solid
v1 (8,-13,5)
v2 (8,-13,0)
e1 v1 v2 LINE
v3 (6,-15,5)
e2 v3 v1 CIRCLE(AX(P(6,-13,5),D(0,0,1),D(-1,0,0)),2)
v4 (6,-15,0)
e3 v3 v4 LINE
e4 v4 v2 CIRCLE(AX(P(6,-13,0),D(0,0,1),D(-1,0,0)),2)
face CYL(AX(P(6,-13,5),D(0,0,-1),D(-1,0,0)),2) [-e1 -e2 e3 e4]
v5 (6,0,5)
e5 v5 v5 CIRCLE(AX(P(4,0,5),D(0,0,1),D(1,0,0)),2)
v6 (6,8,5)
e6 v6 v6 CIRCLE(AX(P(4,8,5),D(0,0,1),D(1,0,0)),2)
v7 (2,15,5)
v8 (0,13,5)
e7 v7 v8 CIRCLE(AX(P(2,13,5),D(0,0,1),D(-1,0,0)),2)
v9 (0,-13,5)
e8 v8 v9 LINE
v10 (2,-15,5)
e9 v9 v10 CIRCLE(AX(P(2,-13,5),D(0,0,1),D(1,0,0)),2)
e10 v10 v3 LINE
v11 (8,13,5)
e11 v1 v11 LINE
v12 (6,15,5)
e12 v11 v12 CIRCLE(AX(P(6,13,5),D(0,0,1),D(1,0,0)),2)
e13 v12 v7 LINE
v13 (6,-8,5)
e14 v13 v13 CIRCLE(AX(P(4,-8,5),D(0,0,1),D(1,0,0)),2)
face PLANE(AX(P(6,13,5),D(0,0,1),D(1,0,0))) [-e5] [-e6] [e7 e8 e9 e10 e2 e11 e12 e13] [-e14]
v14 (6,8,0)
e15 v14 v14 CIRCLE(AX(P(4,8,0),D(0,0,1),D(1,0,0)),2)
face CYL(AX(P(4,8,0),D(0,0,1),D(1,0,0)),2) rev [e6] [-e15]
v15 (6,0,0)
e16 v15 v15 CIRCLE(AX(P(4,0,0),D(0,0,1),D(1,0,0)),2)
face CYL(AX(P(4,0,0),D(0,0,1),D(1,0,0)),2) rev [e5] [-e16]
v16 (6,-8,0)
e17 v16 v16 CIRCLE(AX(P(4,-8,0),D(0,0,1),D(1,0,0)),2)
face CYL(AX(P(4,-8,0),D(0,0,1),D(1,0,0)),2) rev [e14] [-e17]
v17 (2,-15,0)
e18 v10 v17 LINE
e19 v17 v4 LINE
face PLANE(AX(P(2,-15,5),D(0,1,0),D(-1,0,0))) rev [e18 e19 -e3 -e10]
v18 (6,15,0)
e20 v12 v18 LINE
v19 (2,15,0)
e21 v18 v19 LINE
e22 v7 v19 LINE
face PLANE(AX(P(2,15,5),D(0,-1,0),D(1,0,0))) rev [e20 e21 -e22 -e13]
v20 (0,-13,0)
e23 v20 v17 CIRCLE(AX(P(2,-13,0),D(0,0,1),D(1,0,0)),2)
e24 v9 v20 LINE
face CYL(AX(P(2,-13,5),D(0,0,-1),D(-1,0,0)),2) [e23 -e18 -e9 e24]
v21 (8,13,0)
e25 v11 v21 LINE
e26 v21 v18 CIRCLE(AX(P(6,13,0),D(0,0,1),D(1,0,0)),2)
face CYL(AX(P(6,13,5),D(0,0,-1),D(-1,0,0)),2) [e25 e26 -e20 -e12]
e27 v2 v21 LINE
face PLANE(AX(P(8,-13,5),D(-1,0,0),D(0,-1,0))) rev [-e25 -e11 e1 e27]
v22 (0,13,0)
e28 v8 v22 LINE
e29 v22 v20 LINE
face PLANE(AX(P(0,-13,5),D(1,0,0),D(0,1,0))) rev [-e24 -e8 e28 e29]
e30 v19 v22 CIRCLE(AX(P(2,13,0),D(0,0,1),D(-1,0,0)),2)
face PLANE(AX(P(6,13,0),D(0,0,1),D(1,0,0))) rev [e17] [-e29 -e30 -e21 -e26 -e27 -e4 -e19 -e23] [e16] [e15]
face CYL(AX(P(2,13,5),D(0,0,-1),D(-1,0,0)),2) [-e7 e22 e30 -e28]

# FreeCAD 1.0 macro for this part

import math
import FreeCAD as App
import Part
import Sketcher

V = App.Vector
Q = App.Units.Quantity

doc = App.newDocument("Part")
params = doc.addObject("Spreadsheet::Sheet", "Params")
for row, (alias, value) in enumerate([
    ("sketch1_radius", "2 mm"),
    ("sketch1_width", "4 mm"),
    ("sketch1_height", "26 mm"),
    ("pad1_length", "5 mm"),
    ("sketch2_diameter", "4 mm"),
], start=1):
    params.set(f"A{row}", alias)
    params.set(f"B{row}", "=" + value)
    params.setAlias(f"B{row}", alias)

body = doc.addObject("PartDesign::Body", "Body")

sketch1 = body.newObject("Sketcher::SketchObject", "Sketch")
sketch1.AttachmentSupport = (doc.getObject("XY_Plane"), [""])
sketch1.MapMode = "FlatFace"
sketch1.addGeometry([
    Part.LineSegment(V(0, 13, 0), V(0, -13, 0)),
    Part.ArcOfCircle(Part.Circle(V(2, -13, 0), V(0, 0, 1), 2), math.radians(-180), math.radians(-90)),
    Part.LineSegment(V(2, -15, 0), V(6, -15, 0)),
    Part.ArcOfCircle(Part.Circle(V(6, -13, 0), V(0, 0, 1), 2), math.radians(-90), math.radians(0)),
    Part.LineSegment(V(8, -13, 0), V(8, 13, 0)),
    Part.ArcOfCircle(Part.Circle(V(6, 13, 0), V(0, 0, 1), 2), math.radians(0), math.radians(90)),
    Part.LineSegment(V(6, 15, 0), V(2, 15, 0)),
    Part.ArcOfCircle(Part.Circle(V(2, 13, 0), V(0, 0, 1), 2), math.radians(90), math.radians(180)),
], False)
sketch1.addConstraint([
    Sketcher.Constraint("Tangent", 0, 2, 1, 1),
    Sketcher.Constraint("Tangent", 1, 2, 2, 1),
    Sketcher.Constraint("Tangent", 2, 2, 3, 1),
    Sketcher.Constraint("Tangent", 3, 2, 4, 1),
    Sketcher.Constraint("Tangent", 4, 2, 5, 1),
    Sketcher.Constraint("Tangent", 5, 2, 6, 1),
    Sketcher.Constraint("Tangent", 6, 2, 7, 1),
    Sketcher.Constraint("Tangent", 7, 2, 0, 1),
    Sketcher.Constraint("Vertical", 0),
    Sketcher.Constraint("Horizontal", 2),
    Sketcher.Constraint("Vertical", 4),
    Sketcher.Constraint("Horizontal", 6),
    Sketcher.Constraint("Equal", 1, 3),
    Sketcher.Constraint("Equal", 3, 5),
    Sketcher.Constraint("Equal", 5, 7),
    Sketcher.Constraint("Symmetric", 0, 2, 7, 2, -1, 1),
    Sketcher.Constraint("Radius", 1, Q("2 mm")),
    Sketcher.Constraint("DistanceX", 2, 1, 2, 2, Q("4 mm")),
    Sketcher.Constraint("DistanceY", 0, 2, 0, 1, Q("26 mm")),
])
sketch1.setExpression("Constraints[16]", "Params.sketch1_radius")
sketch1.setExpression("Constraints[17]", "Params.sketch1_width")
sketch1.setExpression("Constraints[18]", "Params.sketch1_height")
pad1 = body.newObject("PartDesign::Pad", "Pad")
pad1.Profile = sketch1
pad1.setExpression("Length", "Params.pad1_length")

sketch2 = body.newObject("Sketcher::SketchObject", "Sketch001")
sketch2.AttachmentSupport = (doc.getObject("XY_Plane"), [""])
sketch2.MapMode = "FlatFace"
sketch2.AttachmentOffset = App.Placement(V(0, 0, 5), App.Rotation())
sketch2.addGeometry([
    Part.Circle(V(4, 0, 0), V(0, 0, 1), 2),
    Part.Circle(V(4, 8, 0), V(0, 0, 1), 2),
    Part.Circle(V(4, -8, 0), V(0, 0, 1), 2),
], False)
sketch2.addConstraint([
    Sketcher.Constraint("Equal", 0, 1),
    Sketcher.Constraint("Equal", 1, 2),
    Sketcher.Constraint("Symmetric", 1, 3, 2, 3, -1),
    Sketcher.Constraint("PointOnObject", 0, 3, -1),
    Sketcher.Constraint("Vertical", 0, 3, 1, 3),
    Sketcher.Constraint("Diameter", 0, Q("4 mm")),
    Sketcher.Constraint("DistanceX", -1, 1, 0, 3, Q("4 mm")),
    Sketcher.Constraint("DistanceY", -1, 1, 1, 3, Q("8 mm")),
])
sketch2.setExpression("Constraints[5]", "Params.sketch2_diameter")
pocket1 = body.newObject("PartDesign::Pocket", "Pocket")
pocket1.Profile = sketch2
pocket1.Type = "ThroughAll"

doc.recompute()
